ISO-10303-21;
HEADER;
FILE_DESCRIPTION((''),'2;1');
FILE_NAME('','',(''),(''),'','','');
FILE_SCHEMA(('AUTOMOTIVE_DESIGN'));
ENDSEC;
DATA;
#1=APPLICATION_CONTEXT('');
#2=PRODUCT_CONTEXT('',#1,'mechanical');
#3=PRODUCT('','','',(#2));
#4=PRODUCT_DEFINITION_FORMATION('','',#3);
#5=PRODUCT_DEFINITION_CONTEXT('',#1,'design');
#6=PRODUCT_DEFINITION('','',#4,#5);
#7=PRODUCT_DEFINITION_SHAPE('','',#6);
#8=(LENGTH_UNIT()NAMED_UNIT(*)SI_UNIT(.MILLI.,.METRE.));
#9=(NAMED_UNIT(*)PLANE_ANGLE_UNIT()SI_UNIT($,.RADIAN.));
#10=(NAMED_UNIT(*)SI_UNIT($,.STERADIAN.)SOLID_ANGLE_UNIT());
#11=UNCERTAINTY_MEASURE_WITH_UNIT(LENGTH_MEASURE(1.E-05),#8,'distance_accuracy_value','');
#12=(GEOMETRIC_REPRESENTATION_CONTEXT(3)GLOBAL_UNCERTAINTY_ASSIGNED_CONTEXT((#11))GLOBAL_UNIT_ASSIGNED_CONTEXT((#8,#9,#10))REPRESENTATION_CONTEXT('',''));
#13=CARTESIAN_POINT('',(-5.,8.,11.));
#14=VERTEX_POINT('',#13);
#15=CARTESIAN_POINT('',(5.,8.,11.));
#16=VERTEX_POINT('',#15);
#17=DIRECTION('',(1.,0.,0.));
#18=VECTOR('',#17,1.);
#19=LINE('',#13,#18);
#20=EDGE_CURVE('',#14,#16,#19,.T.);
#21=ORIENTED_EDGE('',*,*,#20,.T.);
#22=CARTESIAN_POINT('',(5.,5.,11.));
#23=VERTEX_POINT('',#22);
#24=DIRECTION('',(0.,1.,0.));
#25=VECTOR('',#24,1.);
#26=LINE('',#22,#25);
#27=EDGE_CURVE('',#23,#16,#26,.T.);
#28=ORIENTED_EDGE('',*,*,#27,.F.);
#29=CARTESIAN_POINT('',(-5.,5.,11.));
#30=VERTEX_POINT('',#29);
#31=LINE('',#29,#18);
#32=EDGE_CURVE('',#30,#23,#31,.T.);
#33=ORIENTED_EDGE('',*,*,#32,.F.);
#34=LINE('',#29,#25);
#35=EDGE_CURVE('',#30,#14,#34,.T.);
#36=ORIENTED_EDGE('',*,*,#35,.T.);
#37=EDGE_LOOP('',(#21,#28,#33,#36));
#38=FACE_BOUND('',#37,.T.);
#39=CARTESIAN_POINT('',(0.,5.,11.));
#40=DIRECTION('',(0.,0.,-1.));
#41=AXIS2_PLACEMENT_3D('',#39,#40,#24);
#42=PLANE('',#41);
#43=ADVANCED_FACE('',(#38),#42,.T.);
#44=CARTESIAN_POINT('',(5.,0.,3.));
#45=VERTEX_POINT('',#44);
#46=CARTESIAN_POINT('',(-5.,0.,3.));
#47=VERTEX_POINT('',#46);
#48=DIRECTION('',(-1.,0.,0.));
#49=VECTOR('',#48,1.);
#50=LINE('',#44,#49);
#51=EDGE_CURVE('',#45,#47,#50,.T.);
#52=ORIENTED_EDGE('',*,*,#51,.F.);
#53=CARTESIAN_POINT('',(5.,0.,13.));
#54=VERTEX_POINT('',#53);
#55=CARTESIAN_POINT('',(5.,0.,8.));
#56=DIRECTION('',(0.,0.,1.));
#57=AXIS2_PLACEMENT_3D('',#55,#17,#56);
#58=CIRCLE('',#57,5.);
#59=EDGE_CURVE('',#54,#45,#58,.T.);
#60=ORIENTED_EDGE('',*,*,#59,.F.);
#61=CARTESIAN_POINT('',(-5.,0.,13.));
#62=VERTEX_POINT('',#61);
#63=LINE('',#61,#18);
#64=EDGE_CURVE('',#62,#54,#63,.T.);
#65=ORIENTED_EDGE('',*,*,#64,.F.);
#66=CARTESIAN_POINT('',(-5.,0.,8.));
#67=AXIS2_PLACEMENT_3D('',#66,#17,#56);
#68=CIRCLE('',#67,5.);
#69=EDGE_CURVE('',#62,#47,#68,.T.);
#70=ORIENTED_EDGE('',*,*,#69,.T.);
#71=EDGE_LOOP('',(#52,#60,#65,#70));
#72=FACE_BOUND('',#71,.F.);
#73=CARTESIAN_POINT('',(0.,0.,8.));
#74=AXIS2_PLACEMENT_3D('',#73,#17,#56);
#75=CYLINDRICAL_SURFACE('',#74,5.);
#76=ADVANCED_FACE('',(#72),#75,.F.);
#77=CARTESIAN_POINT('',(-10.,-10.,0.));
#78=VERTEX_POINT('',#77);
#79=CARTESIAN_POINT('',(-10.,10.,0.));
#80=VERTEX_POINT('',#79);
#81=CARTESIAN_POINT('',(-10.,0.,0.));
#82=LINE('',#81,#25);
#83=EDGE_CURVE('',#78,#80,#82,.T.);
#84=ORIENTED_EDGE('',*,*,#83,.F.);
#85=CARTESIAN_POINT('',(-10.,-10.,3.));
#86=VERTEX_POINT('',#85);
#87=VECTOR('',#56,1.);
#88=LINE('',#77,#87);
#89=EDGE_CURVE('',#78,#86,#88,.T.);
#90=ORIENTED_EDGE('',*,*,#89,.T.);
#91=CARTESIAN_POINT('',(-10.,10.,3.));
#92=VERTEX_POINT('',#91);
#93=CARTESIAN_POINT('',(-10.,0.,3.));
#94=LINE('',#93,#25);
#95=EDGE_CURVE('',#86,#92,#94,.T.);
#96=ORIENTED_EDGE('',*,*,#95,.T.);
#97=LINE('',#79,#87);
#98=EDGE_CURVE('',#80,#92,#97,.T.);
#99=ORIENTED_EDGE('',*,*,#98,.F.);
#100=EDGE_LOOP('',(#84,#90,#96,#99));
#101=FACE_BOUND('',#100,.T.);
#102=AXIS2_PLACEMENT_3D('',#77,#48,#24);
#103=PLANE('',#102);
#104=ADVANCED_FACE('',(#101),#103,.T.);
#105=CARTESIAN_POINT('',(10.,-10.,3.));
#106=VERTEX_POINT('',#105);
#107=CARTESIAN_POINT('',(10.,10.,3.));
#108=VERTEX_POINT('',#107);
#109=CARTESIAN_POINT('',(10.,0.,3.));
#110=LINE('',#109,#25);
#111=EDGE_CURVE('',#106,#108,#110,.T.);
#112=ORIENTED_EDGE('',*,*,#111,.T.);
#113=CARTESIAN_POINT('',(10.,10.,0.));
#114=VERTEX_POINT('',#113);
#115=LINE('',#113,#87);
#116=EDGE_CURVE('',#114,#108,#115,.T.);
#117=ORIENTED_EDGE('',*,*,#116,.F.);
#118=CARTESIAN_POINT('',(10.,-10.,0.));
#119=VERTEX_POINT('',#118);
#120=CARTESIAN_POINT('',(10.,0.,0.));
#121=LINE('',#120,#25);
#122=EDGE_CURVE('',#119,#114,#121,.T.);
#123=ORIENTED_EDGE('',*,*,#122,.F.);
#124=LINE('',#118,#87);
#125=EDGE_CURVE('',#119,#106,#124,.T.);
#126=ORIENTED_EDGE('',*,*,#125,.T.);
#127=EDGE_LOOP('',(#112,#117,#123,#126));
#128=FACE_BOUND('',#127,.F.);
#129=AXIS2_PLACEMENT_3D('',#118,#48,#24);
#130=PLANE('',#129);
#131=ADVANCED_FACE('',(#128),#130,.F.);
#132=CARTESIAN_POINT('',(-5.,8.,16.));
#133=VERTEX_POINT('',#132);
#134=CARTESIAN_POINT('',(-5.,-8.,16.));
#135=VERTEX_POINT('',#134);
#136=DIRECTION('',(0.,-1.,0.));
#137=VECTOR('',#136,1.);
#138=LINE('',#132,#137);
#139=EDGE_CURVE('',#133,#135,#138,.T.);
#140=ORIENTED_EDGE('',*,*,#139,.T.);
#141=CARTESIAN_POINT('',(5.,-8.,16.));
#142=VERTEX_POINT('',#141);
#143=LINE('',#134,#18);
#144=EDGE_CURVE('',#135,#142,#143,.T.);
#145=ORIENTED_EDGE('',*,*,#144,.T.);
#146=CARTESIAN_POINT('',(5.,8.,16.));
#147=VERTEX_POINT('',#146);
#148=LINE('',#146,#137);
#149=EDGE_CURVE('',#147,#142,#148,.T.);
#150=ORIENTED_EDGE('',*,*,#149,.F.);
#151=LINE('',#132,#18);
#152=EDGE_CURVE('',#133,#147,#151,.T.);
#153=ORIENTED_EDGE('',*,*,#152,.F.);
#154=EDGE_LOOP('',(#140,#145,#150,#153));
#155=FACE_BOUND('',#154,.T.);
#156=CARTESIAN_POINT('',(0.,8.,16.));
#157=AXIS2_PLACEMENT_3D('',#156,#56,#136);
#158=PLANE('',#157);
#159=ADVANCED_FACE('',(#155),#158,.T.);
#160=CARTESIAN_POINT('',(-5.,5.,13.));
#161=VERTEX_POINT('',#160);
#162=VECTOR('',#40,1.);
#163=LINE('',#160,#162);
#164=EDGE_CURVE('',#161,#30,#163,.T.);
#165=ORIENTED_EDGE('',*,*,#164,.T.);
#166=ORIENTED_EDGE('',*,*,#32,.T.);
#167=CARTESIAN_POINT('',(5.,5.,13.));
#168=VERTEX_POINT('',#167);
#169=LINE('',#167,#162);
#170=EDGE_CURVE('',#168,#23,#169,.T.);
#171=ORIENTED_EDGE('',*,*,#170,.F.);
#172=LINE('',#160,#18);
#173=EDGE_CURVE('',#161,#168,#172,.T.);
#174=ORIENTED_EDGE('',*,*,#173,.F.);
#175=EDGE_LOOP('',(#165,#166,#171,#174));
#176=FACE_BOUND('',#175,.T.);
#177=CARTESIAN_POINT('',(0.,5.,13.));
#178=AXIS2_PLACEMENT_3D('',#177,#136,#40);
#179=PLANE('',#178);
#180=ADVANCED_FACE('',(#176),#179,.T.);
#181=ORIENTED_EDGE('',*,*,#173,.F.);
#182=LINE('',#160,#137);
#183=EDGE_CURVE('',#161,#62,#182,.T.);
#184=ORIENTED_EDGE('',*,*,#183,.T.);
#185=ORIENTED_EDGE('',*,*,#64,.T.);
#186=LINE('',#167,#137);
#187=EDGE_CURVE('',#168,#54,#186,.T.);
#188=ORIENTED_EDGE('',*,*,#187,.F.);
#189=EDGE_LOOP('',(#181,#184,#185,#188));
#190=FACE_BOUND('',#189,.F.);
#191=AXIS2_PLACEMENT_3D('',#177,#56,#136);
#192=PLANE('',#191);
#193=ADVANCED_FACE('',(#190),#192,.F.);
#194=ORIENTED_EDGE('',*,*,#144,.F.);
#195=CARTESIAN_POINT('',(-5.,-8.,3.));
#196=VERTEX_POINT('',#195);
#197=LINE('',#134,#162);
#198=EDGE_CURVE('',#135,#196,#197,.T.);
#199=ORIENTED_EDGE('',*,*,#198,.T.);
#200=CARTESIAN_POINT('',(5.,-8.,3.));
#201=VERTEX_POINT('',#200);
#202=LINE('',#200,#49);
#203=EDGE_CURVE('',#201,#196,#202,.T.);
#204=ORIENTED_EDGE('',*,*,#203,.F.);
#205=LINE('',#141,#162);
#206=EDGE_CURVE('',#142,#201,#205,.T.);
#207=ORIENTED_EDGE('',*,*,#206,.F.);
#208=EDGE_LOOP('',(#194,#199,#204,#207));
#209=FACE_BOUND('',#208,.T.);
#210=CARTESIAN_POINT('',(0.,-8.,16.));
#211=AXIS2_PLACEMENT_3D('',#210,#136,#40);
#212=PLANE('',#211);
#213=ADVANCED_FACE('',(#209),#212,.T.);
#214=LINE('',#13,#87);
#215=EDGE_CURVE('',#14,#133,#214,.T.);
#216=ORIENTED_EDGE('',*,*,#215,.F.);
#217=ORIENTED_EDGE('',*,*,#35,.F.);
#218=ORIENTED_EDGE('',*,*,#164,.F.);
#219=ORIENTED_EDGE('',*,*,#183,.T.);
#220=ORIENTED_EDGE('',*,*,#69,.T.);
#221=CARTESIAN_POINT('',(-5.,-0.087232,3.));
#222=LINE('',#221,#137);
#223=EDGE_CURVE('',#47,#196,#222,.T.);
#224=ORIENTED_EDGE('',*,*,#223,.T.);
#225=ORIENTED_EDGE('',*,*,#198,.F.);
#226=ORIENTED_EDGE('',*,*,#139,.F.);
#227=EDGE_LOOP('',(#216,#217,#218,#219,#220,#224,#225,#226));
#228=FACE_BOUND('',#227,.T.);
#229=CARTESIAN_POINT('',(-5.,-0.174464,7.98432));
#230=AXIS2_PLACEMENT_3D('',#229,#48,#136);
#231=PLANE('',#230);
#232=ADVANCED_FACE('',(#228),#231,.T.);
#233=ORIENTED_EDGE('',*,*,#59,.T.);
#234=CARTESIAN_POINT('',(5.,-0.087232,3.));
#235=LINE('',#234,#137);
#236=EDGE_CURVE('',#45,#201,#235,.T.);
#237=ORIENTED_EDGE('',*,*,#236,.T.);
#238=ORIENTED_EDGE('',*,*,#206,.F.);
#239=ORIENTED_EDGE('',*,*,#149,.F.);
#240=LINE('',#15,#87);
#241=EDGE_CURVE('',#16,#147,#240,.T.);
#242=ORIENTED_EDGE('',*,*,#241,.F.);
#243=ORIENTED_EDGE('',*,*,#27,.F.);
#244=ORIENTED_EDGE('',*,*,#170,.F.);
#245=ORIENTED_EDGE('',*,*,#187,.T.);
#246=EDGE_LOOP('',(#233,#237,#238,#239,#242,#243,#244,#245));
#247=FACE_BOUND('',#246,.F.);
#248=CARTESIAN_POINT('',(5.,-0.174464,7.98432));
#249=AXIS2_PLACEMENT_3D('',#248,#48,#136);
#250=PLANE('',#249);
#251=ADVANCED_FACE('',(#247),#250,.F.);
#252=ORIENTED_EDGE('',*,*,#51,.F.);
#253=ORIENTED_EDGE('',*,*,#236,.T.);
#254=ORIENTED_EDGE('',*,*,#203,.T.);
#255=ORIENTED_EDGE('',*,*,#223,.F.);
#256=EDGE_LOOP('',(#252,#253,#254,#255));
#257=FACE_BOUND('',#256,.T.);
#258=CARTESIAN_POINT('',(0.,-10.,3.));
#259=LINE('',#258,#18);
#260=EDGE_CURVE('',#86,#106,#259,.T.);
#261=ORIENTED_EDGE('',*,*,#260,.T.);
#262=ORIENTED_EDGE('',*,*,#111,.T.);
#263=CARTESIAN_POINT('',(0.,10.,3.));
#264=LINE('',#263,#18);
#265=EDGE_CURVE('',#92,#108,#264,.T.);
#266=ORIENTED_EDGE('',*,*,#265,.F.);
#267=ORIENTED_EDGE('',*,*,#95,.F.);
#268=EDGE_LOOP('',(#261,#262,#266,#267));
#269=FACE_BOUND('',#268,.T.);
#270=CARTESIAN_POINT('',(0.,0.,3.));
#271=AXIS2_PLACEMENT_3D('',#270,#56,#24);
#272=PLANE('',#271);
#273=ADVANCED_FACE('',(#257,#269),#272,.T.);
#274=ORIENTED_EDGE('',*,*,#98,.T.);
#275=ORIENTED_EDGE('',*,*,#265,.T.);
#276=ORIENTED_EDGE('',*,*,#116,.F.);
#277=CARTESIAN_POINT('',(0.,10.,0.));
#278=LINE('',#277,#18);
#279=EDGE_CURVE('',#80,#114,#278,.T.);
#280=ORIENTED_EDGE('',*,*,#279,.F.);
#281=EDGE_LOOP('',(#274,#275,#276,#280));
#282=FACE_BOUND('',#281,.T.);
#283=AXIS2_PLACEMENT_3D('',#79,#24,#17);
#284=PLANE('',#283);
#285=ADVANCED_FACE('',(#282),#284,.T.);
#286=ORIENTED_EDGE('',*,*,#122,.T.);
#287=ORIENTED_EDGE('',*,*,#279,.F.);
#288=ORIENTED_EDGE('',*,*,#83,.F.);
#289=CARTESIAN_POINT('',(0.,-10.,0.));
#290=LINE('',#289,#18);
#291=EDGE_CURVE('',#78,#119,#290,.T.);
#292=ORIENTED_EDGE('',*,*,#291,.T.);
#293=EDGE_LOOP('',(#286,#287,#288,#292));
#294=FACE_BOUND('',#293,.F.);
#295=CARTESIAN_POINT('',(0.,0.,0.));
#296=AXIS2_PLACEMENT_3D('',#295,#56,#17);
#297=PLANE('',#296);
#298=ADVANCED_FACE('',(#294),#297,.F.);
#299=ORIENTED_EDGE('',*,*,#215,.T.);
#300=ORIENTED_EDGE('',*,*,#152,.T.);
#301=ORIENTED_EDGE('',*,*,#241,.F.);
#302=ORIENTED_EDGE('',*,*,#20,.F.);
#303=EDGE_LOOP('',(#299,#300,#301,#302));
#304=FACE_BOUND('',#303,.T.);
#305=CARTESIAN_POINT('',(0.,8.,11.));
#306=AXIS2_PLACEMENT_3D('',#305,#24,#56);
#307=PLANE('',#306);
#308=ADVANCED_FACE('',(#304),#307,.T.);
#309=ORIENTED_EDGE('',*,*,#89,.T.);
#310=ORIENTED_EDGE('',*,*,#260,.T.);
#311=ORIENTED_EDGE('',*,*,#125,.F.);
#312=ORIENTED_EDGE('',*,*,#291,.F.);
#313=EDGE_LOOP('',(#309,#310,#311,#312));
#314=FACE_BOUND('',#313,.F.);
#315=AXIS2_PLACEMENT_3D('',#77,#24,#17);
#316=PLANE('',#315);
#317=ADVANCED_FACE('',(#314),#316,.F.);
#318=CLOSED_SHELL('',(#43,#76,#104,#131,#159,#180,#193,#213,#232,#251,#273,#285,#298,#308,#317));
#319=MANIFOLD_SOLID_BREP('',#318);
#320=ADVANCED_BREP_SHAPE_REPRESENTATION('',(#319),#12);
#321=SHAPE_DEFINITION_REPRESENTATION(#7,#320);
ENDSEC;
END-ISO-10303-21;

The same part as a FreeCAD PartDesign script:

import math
import FreeCAD as App
import Part
import Sketcher

V = App.Vector
Q = App.Units.Quantity

doc = App.newDocument("Part")
body = doc.addObject("PartDesign::Body", "Body")

# Sketch on XY plane
sketch1 = body.newObject("Sketcher::SketchObject", "Sketch")
sketch1.AttachmentSupport = (doc.getObject("XY_Plane"), [""])
sketch1.MapMode = "FlatFace"
sketch1.addGeometry(Part.LineSegment(V(-10, 10, 0), V(-10, -10, 0)), False)
sketch1.addGeometry(Part.LineSegment(V(-10, -10, 0), V(10, -10, 0)), False)
sketch1.addGeometry(Part.LineSegment(V(10, -10, 0), V(10, 10, 0)), False)
sketch1.addGeometry(Part.LineSegment(V(10, 10, 0), V(-10, 10, 0)), False)
sketch1.addConstraint(Sketcher.Constraint("Coincident", 0, 2, 1, 1))
sketch1.addConstraint(Sketcher.Constraint("Coincident", 1, 2, 2, 1))
sketch1.addConstraint(Sketcher.Constraint("Coincident", 2, 2, 3, 1))
sketch1.addConstraint(Sketcher.Constraint("Coincident", 3, 2, 0, 1))
sketch1.addConstraint(Sketcher.Constraint("Vertical", 0))
sketch1.addConstraint(Sketcher.Constraint("Horizontal", 1))
sketch1.addConstraint(Sketcher.Constraint("Vertical", 2))
sketch1.addConstraint(Sketcher.Constraint("Horizontal", 3))
sketch1.addConstraint(Sketcher.Constraint("Symmetric", 0, 2, 2, 2, -1, 1))
sketch1.addConstraint(Sketcher.Constraint("Equal", 3, 0))
sketch1.addConstraint(Sketcher.Constraint("DistanceX", 1, 1, 1, 2, Q("20 mm")))
pad1 = body.newObject("PartDesign::Pad", "Pad")
pad1.Profile = sketch1
pad1.Length = 3

# Sketch on YZ plane
sketch2 = body.newObject("Sketcher::SketchObject", "Sketch001")
sketch2.AttachmentSupport = (doc.getObject("YZ_Plane"), [""])
sketch2.MapMode = "FlatFace"
sketch2.addGeometry(Part.ArcOfCircle(Part.Circle(V(0, 8, 0), V(0, 0, 1), 5), math.radians(90), math.radians(270)), False)
sketch2.addGeometry(Part.LineSegment(V(0, 13, 0), V(5, 13, 0)), False)
sketch2.addGeometry(Part.LineSegment(V(5, 13, 0), V(5, 11, 0)), False)
sketch2.addGeometry(Part.LineSegment(V(5, 11, 0), V(8, 11, 0)), False)
sketch2.addGeometry(Part.LineSegment(V(8, 11, 0), V(8, 16, 0)), False)
sketch2.addGeometry(Part.LineSegment(V(8, 16, 0), V(-8, 16, 0)), False)
sketch2.addGeometry(Part.LineSegment(V(-8, 16, 0), V(-8, 0, 0)), False)
sketch2.addGeometry(Part.LineSegment(V(-8, 0, 0), V(8.9, 0, 0)), False)
sketch2.addGeometry(Part.LineSegment(V(8.9, 0, 0), V(8.9, 3, 0)), False)
sketch2.addGeometry(Part.LineSegment(V(8.9, 3, 0), V(0, 3, 0)), False)
sketch2.addConstraint(Sketcher.Constraint("Tangent", 0, 1, 1, 1))
sketch2.addConstraint(Sketcher.Constraint("Coincident", 1, 2, 2, 1))
sketch2.addConstraint(Sketcher.Constraint("Coincident", 2, 2, 3, 1))
sketch2.addConstraint(Sketcher.Constraint("Coincident", 3, 2, 4, 1))
sketch2.addConstraint(Sketcher.Constraint("Coincident", 4, 2, 5, 1))
sketch2.addConstraint(Sketcher.Constraint("Coincident", 5, 2, 6, 1))
sketch2.addConstraint(Sketcher.Constraint("Coincident", 6, 2, 7, 1))
sketch2.addConstraint(Sketcher.Constraint("Coincident", 7, 2, 8, 1))
sketch2.addConstraint(Sketcher.Constraint("Coincident", 8, 2, 9, 1))
sketch2.addConstraint(Sketcher.Constraint("Tangent", 9, 2, 0, 2))
sketch2.addConstraint(Sketcher.Constraint("Horizontal", 1))
sketch2.addConstraint(Sketcher.Constraint("Vertical", 2))
sketch2.addConstraint(Sketcher.Constraint("Horizontal", 3))
sketch2.addConstraint(Sketcher.Constraint("Vertical", 4))
sketch2.addConstraint(Sketcher.Constraint("Horizontal", 5))
sketch2.addConstraint(Sketcher.Constraint("Vertical", 6))
sketch2.addConstraint(Sketcher.Constraint("Horizontal", 7))
sketch2.addConstraint(Sketcher.Constraint("Vertical", 8))
sketch2.addConstraint(Sketcher.Constraint("Horizontal", 9))
sketch2.addConstraint(Sketcher.Constraint("PointOnObject", 0, 3, -2))
sketch2.addConstraint(Sketcher.Constraint("PointOnObject", 6, 2, -1))
sketch2.addConstraint(Sketcher.Constraint("Equal", 1, 4))
sketch2.addConstraint(Sketcher.Constraint("Equal", 5, 6))
sketch2.addConstraint(Sketcher.Constraint("Equal", 3, 8))
sketch2.addConstraint(Sketcher.Constraint("Radius", 0, Q("5 mm")))
sketch2.addConstraint(Sketcher.Constraint("DistanceX", 1, 1, 1, 2, Q("5 mm")))
sketch2.addConstraint(Sketcher.Constraint("DistanceX", 3, 1, 3, 2, Q("3 mm")))
sketch2.addConstraint(Sketcher.Constraint("DistanceX", 5, 2, 5, 1, Q("16 mm")))
sketch2.addConstraint(Sketcher.Constraint("DistanceX", 7, 1, 7, 2, Q("16.878697 mm")))
pad2 = body.newObject("PartDesign::Pad", "Pad001")
pad2.Profile = sketch2
pad2.Type = "TwoLengths"
pad2.Length = 5
pad2.Length2 = 5

doc.recompute()
